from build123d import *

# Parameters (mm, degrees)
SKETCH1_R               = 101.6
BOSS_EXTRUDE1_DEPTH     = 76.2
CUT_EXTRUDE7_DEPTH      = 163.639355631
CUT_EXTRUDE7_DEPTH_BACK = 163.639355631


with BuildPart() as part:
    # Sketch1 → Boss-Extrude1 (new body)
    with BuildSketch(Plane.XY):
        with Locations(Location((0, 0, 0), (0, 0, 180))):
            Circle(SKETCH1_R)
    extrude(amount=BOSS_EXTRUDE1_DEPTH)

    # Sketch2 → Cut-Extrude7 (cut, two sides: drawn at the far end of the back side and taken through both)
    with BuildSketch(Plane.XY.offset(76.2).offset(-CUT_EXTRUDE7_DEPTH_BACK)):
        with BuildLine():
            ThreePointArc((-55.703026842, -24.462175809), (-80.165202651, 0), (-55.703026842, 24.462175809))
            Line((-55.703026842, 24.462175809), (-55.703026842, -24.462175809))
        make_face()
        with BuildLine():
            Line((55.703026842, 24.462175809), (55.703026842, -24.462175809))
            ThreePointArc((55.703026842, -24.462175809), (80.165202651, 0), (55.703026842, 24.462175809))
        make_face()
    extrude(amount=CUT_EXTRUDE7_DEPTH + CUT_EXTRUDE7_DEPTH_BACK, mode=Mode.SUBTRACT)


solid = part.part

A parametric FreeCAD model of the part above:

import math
import FreeCAD as App
import Part
import Sketcher

V = App.Vector
Q = App.Units.Quantity

doc = App.newDocument("Part")
params = doc.addObject("Spreadsheet::Sheet", "Params")
for row, (alias, value) in enumerate([
    ("sketch1_diameter", "8 in"),
    ("pad1_length", "3 in"),
], start=1):
    params.set(f"A{row}", alias)
    params.set(f"B{row}", "=" + value)
    params.setAlias(f"B{row}", alias)

body = doc.addObject("PartDesign::Body", "Body")

# Sketch on XY plane
sketch1 = body.newObject("Sketcher::SketchObject", "Sketch")
sketch1.AttachmentSupport = (doc.getObject("XY_Plane"), [""])
sketch1.MapMode = "FlatFace"
sketch1.addGeometry(Part.Circle(V(0, 0, 0), V(0, 0, 1), 101.6), False)
sketch1.addConstraint([
    Sketcher.Constraint("Coincident", 0, 3, -1, 1),
    Sketcher.Constraint("Diameter", 0, Q("8 in")),
])
sketch1.setExpression("Constraints[1]", "Params.sketch1_diameter")
pad1 = body.newObject("PartDesign::Pad", "Pad")
pad1.Profile = sketch1
pad1.setExpression("Length", "Params.pad1_length")

# Sketch on XY plane
sketch2 = body.newObject("Sketcher::SketchObject", "Sketch001")
sketch2.AttachmentSupport = (doc.getObject("XY_Plane"), [""])
sketch2.MapMode = "FlatFace"
sketch2.AttachmentOffset = App.Placement(V(0, 0, 3 * 25.4), App.Rotation())
sketch2.addGeometry([
    Part.ArcOfCircle(Part.Circle(V(-55.703027, 0, 0), V(0, 0, 1), 24.462176), math.radians(90), math.radians(270)),
    Part.LineSegment(V(-55.703027, -24.462176, 0), V(-55.703027, 24.462176, 0)),
    Part.LineSegment(V(55.703027, 24.462176, 0), V(55.703027, -24.462176, 0)),
    Part.ArcOfCircle(Part.Circle(V(55.703027, 0, 0), V(0, 0, 1), 24.462176), math.radians(-90), math.radians(90)),
], False)
sketch2.addConstraint([
    Sketcher.Constraint("Coincident", 0, 1, 1, 2),
    Sketcher.Constraint("Coincident", 1, 1, 0, 2),
    Sketcher.Constraint("Coincident", 2, 1, 3, 2),
    Sketcher.Constraint("Coincident", 3, 1, 2, 2),
    Sketcher.Constraint("Vertical", 1),
    Sketcher.Constraint("Vertical", 2),
    Sketcher.Constraint("Equal", 0, 3),
    Sketcher.Constraint("Symmetric", 0, 3, 3, 3, -1, 1),
    Sketcher.Constraint("Symmetric", 0, 1, 2, 1, -2),
    Sketcher.Constraint("Vertical", 3, 3, 2, 1),
    Sketcher.Constraint("Radius", 0, Q("24.462176 mm")),
    Sketcher.Constraint("DistanceX", 0, 3, -1, 1, Q("55.703027 mm")),
])
pocket1 = body.newObject("PartDesign::Pocket", "Pocket")
pocket1.Profile = sketch2
pocket1.Type = "ThroughAll"
pocket1.Midplane = True

doc.recompute()
